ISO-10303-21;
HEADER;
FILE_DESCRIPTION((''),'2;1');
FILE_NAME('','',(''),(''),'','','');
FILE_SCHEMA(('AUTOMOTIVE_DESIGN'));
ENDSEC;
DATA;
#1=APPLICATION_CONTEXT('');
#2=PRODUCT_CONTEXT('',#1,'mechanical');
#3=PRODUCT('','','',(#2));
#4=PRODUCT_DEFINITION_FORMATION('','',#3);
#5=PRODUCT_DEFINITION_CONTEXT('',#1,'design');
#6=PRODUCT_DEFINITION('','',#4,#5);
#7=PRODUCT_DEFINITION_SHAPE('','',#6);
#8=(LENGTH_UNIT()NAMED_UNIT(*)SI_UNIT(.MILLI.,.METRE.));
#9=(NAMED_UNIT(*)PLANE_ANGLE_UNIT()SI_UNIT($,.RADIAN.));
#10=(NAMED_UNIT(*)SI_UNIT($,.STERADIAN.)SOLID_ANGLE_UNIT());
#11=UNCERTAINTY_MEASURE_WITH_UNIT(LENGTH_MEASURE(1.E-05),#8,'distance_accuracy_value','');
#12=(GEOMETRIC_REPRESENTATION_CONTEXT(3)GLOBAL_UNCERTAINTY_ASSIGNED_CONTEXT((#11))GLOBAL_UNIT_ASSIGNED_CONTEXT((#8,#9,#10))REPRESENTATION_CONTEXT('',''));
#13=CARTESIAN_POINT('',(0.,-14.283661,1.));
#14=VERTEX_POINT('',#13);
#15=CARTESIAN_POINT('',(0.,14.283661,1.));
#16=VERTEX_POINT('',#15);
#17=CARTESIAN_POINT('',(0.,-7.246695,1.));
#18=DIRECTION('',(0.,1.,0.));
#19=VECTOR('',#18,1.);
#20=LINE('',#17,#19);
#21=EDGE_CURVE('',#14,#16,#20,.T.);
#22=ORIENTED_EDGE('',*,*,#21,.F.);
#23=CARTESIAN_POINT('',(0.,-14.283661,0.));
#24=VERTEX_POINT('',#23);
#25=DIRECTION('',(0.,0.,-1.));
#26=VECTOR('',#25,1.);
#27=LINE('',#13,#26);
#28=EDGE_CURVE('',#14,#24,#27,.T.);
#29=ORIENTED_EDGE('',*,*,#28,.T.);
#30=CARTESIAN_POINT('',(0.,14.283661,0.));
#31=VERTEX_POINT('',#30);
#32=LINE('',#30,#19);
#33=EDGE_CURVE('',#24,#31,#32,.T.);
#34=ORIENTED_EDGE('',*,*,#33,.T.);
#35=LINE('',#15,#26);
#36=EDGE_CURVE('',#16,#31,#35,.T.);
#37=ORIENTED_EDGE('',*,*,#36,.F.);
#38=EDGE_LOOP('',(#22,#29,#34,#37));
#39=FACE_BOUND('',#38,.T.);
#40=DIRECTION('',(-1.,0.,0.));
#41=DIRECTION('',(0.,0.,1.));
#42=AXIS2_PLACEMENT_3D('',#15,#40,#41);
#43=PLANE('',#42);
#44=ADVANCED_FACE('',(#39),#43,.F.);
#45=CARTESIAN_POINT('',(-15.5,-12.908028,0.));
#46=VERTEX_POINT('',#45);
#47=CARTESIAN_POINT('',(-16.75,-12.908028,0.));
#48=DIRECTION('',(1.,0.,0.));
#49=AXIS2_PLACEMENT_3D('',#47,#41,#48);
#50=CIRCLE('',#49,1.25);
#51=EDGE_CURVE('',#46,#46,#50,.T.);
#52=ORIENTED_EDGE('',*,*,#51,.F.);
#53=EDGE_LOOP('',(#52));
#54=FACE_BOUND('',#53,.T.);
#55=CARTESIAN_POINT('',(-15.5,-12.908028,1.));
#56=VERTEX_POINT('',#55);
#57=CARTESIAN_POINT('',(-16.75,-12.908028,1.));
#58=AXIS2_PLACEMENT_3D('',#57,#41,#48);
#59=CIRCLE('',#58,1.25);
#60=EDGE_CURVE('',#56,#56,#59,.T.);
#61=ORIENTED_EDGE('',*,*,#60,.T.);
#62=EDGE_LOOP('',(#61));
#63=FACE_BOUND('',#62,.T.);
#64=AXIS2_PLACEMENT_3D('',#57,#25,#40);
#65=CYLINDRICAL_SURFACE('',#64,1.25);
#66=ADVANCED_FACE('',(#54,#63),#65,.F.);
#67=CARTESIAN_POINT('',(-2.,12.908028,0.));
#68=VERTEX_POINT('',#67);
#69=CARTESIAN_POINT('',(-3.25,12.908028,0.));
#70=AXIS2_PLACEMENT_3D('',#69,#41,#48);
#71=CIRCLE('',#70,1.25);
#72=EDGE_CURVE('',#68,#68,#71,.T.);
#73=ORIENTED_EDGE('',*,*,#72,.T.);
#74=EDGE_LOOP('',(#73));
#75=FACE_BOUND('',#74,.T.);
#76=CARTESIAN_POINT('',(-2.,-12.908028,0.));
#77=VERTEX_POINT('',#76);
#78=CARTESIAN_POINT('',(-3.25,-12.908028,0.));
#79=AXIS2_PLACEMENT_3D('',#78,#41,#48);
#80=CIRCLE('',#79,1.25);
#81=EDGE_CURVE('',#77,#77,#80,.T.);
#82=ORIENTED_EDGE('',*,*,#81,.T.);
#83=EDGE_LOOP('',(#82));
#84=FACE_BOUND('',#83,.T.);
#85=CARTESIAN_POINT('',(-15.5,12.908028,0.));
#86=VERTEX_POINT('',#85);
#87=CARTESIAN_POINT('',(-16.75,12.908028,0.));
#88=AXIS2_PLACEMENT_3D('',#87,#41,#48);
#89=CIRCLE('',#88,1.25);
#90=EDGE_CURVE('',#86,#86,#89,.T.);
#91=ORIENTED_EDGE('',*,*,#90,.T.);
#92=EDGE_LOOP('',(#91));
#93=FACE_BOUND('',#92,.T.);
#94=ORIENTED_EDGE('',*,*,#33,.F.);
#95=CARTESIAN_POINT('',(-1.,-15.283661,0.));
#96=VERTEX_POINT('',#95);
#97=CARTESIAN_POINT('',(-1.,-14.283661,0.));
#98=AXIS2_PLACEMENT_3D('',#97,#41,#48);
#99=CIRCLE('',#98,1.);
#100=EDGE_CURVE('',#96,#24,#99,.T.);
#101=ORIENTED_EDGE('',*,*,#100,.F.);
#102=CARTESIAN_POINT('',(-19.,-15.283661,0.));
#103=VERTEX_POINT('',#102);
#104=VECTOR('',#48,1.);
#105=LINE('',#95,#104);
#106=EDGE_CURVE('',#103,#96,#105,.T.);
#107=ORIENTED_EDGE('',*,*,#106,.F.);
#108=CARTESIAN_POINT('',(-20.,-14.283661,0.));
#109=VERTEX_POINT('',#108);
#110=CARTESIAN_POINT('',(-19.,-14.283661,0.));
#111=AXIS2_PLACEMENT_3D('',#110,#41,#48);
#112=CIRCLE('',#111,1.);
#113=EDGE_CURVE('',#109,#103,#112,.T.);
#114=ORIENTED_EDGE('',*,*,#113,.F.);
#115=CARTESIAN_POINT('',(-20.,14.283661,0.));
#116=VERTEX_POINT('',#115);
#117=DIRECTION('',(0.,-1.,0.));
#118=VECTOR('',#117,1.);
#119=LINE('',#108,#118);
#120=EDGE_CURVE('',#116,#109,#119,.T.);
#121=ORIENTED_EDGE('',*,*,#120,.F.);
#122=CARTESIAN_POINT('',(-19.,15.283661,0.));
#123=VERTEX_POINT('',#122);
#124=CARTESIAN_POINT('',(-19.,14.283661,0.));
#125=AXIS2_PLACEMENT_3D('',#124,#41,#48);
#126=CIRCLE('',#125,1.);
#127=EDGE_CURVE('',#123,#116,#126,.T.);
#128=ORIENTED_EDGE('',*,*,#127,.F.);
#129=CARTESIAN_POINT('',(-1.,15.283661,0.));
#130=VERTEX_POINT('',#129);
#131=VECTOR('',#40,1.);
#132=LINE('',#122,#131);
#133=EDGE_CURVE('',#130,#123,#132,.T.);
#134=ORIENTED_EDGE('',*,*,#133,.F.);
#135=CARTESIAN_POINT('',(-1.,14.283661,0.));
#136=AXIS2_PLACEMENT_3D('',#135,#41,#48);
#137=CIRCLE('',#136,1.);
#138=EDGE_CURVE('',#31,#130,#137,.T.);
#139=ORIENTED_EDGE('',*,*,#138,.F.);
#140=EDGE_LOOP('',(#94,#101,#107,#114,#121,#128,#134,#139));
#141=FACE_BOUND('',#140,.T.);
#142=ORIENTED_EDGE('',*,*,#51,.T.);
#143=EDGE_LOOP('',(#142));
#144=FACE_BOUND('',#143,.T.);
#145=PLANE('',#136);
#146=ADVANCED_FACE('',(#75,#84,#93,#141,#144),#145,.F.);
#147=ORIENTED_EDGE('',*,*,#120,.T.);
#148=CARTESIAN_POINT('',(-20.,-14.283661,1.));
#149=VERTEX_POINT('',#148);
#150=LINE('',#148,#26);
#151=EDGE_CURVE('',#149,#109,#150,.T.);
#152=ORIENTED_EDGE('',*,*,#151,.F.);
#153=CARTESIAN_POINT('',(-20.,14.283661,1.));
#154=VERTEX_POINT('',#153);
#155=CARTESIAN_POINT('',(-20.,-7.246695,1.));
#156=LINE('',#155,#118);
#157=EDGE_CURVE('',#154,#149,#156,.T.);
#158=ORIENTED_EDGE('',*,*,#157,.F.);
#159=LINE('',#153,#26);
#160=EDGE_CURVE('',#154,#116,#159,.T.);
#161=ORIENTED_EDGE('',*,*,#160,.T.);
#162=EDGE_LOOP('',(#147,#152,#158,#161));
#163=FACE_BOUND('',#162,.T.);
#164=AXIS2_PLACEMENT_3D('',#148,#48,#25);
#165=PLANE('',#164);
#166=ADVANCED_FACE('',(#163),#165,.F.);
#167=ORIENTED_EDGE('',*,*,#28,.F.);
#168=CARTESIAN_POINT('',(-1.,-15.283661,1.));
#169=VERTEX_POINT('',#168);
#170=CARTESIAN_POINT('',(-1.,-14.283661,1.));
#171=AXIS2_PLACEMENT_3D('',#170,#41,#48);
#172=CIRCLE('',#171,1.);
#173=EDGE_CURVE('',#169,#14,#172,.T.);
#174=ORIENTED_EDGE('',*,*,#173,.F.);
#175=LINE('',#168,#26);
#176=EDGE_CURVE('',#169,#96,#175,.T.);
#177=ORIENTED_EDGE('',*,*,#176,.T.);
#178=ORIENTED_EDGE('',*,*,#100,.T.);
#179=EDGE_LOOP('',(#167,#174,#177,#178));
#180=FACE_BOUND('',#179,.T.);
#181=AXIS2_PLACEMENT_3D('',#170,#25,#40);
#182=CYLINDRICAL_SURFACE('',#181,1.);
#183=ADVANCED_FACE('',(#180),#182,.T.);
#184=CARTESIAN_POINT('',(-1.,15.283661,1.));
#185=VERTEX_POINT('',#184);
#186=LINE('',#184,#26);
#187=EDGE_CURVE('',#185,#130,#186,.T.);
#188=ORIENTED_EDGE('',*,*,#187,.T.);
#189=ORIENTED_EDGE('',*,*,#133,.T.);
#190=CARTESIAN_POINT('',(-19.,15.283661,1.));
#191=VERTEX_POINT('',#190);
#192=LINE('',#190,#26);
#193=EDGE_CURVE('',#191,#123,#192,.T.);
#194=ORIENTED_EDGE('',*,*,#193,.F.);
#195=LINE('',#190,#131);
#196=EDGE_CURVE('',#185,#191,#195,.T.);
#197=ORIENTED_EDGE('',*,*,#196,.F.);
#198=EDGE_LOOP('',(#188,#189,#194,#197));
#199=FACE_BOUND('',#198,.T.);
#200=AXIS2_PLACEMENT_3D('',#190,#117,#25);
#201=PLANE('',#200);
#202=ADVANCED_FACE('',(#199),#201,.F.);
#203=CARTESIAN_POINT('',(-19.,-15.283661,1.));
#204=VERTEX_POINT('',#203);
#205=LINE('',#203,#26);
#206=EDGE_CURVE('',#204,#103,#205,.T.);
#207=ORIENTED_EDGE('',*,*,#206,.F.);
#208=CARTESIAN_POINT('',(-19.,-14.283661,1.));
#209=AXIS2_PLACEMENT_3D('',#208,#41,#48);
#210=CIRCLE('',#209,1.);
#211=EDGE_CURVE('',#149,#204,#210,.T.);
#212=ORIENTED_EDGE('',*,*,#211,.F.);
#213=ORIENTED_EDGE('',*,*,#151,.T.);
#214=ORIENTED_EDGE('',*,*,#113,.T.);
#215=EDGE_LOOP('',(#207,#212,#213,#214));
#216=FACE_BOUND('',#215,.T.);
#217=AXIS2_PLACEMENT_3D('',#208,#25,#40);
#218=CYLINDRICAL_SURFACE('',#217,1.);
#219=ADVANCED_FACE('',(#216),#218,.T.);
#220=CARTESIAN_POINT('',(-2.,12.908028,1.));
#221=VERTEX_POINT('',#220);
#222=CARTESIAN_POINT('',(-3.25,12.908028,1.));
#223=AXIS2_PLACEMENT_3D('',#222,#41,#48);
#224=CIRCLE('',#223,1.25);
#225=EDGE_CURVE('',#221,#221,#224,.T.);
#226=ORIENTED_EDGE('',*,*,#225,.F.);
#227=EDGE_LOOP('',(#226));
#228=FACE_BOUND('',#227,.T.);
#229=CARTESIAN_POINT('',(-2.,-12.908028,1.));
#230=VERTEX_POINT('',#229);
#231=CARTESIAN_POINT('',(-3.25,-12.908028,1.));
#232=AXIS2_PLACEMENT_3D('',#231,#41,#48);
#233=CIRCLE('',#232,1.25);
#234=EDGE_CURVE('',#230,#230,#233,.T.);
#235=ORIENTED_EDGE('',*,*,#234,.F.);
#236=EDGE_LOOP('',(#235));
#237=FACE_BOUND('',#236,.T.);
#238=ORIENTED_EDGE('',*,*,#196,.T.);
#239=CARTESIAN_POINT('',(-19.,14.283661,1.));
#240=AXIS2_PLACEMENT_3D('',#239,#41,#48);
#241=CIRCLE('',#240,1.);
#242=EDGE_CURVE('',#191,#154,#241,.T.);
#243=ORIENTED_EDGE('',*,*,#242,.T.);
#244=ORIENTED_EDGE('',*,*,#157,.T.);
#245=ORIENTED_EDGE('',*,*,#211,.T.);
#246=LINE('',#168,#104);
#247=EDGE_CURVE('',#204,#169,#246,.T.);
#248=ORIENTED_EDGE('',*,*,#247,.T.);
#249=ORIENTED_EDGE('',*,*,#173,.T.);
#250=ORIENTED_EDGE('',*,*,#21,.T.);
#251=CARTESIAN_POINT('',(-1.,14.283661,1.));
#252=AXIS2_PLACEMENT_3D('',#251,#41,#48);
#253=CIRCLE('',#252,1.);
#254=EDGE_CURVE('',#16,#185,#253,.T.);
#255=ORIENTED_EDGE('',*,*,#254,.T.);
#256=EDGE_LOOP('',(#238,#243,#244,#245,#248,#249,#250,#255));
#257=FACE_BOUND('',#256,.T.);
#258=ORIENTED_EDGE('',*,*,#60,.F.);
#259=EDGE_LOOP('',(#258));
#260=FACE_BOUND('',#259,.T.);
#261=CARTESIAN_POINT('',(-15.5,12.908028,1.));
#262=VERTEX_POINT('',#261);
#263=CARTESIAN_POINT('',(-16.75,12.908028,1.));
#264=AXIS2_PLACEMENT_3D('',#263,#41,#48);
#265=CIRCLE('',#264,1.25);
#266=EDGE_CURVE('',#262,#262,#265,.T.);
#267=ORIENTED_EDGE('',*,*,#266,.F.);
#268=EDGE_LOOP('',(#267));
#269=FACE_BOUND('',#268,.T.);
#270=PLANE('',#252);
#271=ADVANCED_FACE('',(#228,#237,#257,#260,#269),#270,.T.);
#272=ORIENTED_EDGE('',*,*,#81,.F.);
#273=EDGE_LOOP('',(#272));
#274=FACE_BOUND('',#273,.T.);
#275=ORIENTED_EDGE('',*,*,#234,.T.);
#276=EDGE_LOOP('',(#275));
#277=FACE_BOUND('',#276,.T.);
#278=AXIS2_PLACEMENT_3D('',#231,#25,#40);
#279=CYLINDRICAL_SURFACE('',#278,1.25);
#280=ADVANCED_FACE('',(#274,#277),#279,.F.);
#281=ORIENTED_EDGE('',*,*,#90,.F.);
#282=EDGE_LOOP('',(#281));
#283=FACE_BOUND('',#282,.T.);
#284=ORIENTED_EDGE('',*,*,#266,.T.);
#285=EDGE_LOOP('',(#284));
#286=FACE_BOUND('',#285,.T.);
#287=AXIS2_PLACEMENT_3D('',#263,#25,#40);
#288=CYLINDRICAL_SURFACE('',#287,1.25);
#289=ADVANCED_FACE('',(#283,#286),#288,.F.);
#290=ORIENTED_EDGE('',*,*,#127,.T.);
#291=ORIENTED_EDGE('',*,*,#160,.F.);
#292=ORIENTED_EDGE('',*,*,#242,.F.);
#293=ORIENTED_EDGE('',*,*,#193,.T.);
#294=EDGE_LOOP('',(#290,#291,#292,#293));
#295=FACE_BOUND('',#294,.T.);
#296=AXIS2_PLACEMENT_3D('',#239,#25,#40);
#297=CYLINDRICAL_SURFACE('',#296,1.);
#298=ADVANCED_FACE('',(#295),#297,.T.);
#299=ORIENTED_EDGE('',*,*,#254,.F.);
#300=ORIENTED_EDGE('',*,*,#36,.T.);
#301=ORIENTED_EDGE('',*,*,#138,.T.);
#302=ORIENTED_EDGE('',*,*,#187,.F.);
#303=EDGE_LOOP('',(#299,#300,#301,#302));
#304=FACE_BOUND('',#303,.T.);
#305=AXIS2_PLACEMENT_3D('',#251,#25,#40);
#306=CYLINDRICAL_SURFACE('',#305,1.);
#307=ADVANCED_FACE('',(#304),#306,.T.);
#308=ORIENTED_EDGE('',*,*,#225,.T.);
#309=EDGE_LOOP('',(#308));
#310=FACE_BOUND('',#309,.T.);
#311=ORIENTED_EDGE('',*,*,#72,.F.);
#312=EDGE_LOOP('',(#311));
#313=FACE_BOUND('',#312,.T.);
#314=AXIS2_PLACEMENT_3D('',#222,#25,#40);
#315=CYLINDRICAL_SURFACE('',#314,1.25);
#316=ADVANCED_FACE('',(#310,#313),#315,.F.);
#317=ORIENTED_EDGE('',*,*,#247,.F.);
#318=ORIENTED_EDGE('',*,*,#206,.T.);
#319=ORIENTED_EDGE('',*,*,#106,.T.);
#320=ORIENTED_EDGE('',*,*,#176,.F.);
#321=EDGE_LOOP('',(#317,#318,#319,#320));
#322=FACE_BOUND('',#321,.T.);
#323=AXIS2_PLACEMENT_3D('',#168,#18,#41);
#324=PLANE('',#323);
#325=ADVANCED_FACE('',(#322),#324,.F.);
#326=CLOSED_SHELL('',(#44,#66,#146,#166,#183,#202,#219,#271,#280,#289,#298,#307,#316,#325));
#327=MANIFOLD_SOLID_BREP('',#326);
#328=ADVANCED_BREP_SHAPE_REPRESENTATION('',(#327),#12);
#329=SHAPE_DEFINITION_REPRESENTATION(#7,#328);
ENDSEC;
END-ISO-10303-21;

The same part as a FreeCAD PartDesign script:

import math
import FreeCAD as App
import Part
import Sketcher
from FreeCAD import Vector

doc = App.newDocument("Part")
params = doc.addObject("Spreadsheet::Sheet", "Params")
for row, (alias, value) in enumerate([
    ("sketch1_radius", "1 mm"),
    ("sketch1_diameter", "2.5 mm"),
    ("sketch1_width", "18 mm"),
    ("pad1_length", "1 mm"),
], start=1):
    params.set(f"A{row}", alias)
    params.set(f"B{row}", "=" + value)
    params.setAlias(f"B{row}", alias)

body = doc.addObject("PartDesign::Body", "Body")

sketch1 = doc.addObject("Sketcher::SketchObject", "Sketch")
body.addObject(sketch1)
sketch1.AttachmentSupport = (doc.XY_Plane, [""])
sketch1.MapMode = "FlatFace"
sketch1.addGeometry(Part.LineSegment(Vector(0, -14.3, 0), Vector(0, 14.3, 0)), False)
sketch1.addGeometry(Part.ArcOfCircle(Part.Circle(Vector(-1, 14.3, 0), Vector(0, 0, 1), 1), math.radians(0), math.radians(90)), False)
sketch1.addGeometry(Part.LineSegment(Vector(-1, 15.3, 0), Vector(-19, 15.3, 0)), False)
sketch1.addGeometry(Part.ArcOfCircle(Part.Circle(Vector(-19, 14.3, 0), Vector(0, 0, 1), 1), math.radians(90), math.radians(180)), False)
sketch1.addGeometry(Part.LineSegment(Vector(-20, 14.3, 0), Vector(-20, -14.3, 0)), False)
sketch1.addGeometry(Part.ArcOfCircle(Part.Circle(Vector(-19, -14.3, 0), Vector(0, 0, 1), 1), math.radians(180), math.radians(270)), False)
sketch1.addGeometry(Part.LineSegment(Vector(-19, -15.3, 0), Vector(-1, -15.3, 0)), False)
sketch1.addGeometry(Part.ArcOfCircle(Part.Circle(Vector(-1, -14.3, 0), Vector(0, 0, 1), 1), math.radians(-90), math.radians(0)), False)
sketch1.addGeometry(Part.Circle(Vector(-3.2, -12.9, 0), Vector(0, 0, 1), 1.2), False)
sketch1.addGeometry(Part.Circle(Vector(-16.8, -12.9, 0), Vector(0, 0, 1), 1.2), False)
sketch1.addGeometry(Part.Circle(Vector(-3.2, 12.9, 0), Vector(0, 0, 1), 1.2), False)
sketch1.addGeometry(Part.Circle(Vector(-16.8, 12.9, 0), Vector(0, 0, 1), 1.2), False)
sketch1.addConstraint(Sketcher.Constraint("Tangent", 0, 2, 1, 1))
sketch1.addConstraint(Sketcher.Constraint("Tangent", 1, 2, 2, 1))
sketch1.addConstraint(Sketcher.Constraint("Tangent", 2, 2, 3, 1))
sketch1.addConstraint(Sketcher.Constraint("Tangent", 3, 2, 4, 1))
sketch1.addConstraint(Sketcher.Constraint("Tangent", 4, 2, 5, 1))
sketch1.addConstraint(Sketcher.Constraint("Tangent", 5, 2, 6, 1))
sketch1.addConstraint(Sketcher.Constraint("Tangent", 6, 2, 7, 1))
sketch1.addConstraint(Sketcher.Constraint("Tangent", 7, 2, 0, 1))
sketch1.addConstraint(Sketcher.Constraint("Vertical", 0))
sketch1.addConstraint(Sketcher.Constraint("Horizontal", 2))
sketch1.addConstraint(Sketcher.Constraint("Vertical", 4))
sketch1.addConstraint(Sketcher.Constraint("Horizontal", 6))
sketch1.addConstraint(Sketcher.Constraint("Equal", 1, 3))
sketch1.addConstraint(Sketcher.Constraint("Equal", 3, 5))
sketch1.addConstraint(Sketcher.Constraint("Equal", 5, 7))
sketch1.addConstraint(Sketcher.Constraint("Equal", 8, 9))
sketch1.addConstraint(Sketcher.Constraint("Equal", 9, 10))
sketch1.addConstraint(Sketcher.Constraint("Equal", 10, 11))
sketch1.addConstraint(Sketcher.Constraint("Symmetric", 0, 2, 7, 2, -1, 1))
sketch1.addConstraint(Sketcher.Constraint("Symmetric", 8, 3, 10, 3, -1))
sketch1.addConstraint(Sketcher.Constraint("Symmetric", 9, 3, 11, 3, -1))
sketch1.addConstraint(Sketcher.Constraint("Horizontal", 8, 3, 9, 3))
sketch1.addConstraint(Sketcher.Constraint("Radius", 1, 1.0))
sketch1.addConstraint(Sketcher.Constraint("Diameter", 8, 2.5))
sketch1.addConstraint(Sketcher.Constraint("DistanceX", 2, 2, 2, 1, 18.0))
sketch1.addConstraint(Sketcher.Constraint("DistanceX", 9, 3, 8, 3, 13.5))
sketch1.addConstraint(Sketcher.Constraint("DistanceX", 8, 3, -1, 1, 3.25))
sketch1.addConstraint(Sketcher.Constraint("DistanceY", 0, 1, 0, 2, 28.567322))
sketch1.addConstraint(Sketcher.Constraint("DistanceY", 8, 3, -1, 1, 12.908028))
sketch1.setExpression("Constraints[22]", "Params.sketch1_radius")
sketch1.setExpression("Constraints[23]", "Params.sketch1_diameter")
sketch1.setExpression("Constraints[24]", "Params.sketch1_width")
pad1 = doc.addObject("PartDesign::Pad", "Pad")
body.addObject(pad1)
pad1.Profile = sketch1
pad1.setExpression("Length", "Params.pad1_length")

doc.recompute()
